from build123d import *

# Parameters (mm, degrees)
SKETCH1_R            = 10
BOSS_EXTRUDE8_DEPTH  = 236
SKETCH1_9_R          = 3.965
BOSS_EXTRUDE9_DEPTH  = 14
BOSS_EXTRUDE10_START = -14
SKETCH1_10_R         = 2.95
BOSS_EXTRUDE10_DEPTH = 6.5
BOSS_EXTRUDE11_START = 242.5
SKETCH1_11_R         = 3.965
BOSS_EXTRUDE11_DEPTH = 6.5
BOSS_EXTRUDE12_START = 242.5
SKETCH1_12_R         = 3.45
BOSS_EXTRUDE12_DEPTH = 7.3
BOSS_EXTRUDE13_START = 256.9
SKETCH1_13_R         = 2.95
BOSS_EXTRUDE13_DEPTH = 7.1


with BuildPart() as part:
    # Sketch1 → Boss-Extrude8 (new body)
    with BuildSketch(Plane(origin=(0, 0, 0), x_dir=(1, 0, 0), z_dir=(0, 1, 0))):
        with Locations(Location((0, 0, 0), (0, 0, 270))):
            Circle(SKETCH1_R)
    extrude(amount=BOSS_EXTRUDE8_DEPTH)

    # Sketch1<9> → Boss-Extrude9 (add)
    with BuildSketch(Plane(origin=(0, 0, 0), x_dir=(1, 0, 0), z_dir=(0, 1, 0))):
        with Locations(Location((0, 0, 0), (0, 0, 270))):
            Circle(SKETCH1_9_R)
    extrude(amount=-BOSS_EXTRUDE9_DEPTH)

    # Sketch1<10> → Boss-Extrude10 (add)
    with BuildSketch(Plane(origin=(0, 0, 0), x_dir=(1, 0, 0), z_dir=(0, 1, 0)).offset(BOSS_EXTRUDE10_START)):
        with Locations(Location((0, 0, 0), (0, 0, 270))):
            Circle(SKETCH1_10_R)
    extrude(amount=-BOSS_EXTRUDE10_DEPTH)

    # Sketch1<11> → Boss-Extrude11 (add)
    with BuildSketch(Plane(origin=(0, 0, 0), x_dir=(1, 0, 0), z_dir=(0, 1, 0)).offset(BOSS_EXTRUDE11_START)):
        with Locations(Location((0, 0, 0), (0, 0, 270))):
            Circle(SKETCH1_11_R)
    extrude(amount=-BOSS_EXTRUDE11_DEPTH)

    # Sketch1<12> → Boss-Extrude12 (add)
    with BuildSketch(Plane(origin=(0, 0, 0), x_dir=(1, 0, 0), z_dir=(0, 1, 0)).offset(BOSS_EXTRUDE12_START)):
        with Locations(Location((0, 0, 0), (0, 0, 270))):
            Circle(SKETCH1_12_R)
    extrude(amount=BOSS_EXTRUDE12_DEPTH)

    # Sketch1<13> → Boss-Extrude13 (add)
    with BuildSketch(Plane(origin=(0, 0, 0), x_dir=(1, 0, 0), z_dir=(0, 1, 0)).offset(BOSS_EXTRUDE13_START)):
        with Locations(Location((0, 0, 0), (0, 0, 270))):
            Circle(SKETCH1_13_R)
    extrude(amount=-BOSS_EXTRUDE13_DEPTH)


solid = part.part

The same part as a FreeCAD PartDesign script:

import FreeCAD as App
import Part
import Sketcher
from FreeCAD import Vector

doc = App.newDocument("Part")
body = doc.addObject("PartDesign::Body", "Body")

# Sketch on XZ plane
sketch1 = doc.addObject("Sketcher::SketchObject", "Sketch")
body.addObject(sketch1)
sketch1.AttachmentSupport = (doc.XZ_Plane, [""])
sketch1.MapMode = "FlatFace"
sketch1.addGeometry(Part.Circle(Vector(0, 0, 0), Vector(0, 0, 1), 10), False)
sketch1.addConstraint([
    Sketcher.Constraint("Coincident", 0, 3, -1, 1),
    Sketcher.Constraint("Diameter", 0, 20.0),
])
pad1 = doc.addObject("PartDesign::Pad", "Pad")
body.addObject(pad1)
pad1.Profile = sketch1
pad1.Length = 236
pad1.Reversed = True

# Sketch on XZ plane
sketch2 = doc.addObject("Sketcher::SketchObject", "Sketch001")
body.addObject(sketch2)
sketch2.AttachmentSupport = (doc.XZ_Plane, [""])
sketch2.MapMode = "FlatFace"
sketch2.addGeometry(Part.Circle(Vector(0, 0, 0), Vector(0, 0, 1), 3.965), False)
sketch2.addConstraint([
    Sketcher.Constraint("Coincident", 0, 3, -1, 1),
    Sketcher.Constraint("Diameter", 0, 7.93),
])
pad2 = doc.addObject("PartDesign::Pad", "Pad001")
body.addObject(pad2)
pad2.Profile = sketch2
pad2.Length = 14

# Sketch on XZ plane
sketch3 = doc.addObject("Sketcher::SketchObject", "Sketch002")
body.addObject(sketch3)
sketch3.AttachmentSupport = (doc.XZ_Plane, [""])
sketch3.MapMode = "FlatFace"
sketch3.AttachmentOffset = App.Placement(Vector(0, 0, 14), App.Rotation())
sketch3.addGeometry(Part.Circle(Vector(0, 0, 0), Vector(0, 0, 1), 2.95), False)
sketch3.addConstraint([
    Sketcher.Constraint("Coincident", 0, 3, -1, 1),
    Sketcher.Constraint("Diameter", 0, 5.9),
])
pad3 = doc.addObject("PartDesign::Pad", "Pad002")
body.addObject(pad3)
pad3.Profile = sketch3
pad3.Length = 6.5

# Sketch on XZ plane
sketch4 = doc.addObject("Sketcher::SketchObject", "Sketch003")
body.addObject(sketch4)
sketch4.AttachmentSupport = (doc.XZ_Plane, [""])
sketch4.MapMode = "FlatFace"
sketch4.AttachmentOffset = App.Placement(Vector(0, 0, -242.5), App.Rotation())
sketch4.addGeometry(Part.Circle(Vector(0, 0, 0), Vector(0, 0, 1), 3.965), False)
sketch4.addConstraint([
    Sketcher.Constraint("Coincident", 0, 3, -1, 1),
    Sketcher.Constraint("Diameter", 0, 7.93),
])
pad4 = doc.addObject("PartDesign::Pad", "Pad003")
body.addObject(pad4)
pad4.Profile = sketch4
pad4.Length = 6.5

# Sketch on XZ plane
sketch5 = doc.addObject("Sketcher::SketchObject", "Sketch004")
body.addObject(sketch5)
sketch5.AttachmentSupport = (doc.XZ_Plane, [""])
sketch5.MapMode = "FlatFace"
sketch5.AttachmentOffset = App.Placement(Vector(0, 0, -242.5), App.Rotation())
sketch5.addGeometry(Part.Circle(Vector(0, 0, 0), Vector(0, 0, 1), 3.45), False)
sketch5.addConstraint([
    Sketcher.Constraint("Coincident", 0, 3, -1, 1),
    Sketcher.Constraint("Diameter", 0, 6.9),
])
pad5 = doc.addObject("PartDesign::Pad", "Pad004")
body.addObject(pad5)
pad5.Profile = sketch5
pad5.Length = 7.3
pad5.Reversed = True

# Sketch on XZ plane
sketch6 = doc.addObject("Sketcher::SketchObject", "Sketch005")
body.addObject(sketch6)
sketch6.AttachmentSupport = (doc.XZ_Plane, [""])
sketch6.MapMode = "FlatFace"
sketch6.AttachmentOffset = App.Placement(Vector(0, 0, -256.9), App.Rotation())
sketch6.addGeometry(Part.Circle(Vector(0, 0, 0), Vector(0, 0, 1), 2.95), False)
sketch6.addConstraint([
    Sketcher.Constraint("Coincident", 0, 3, -1, 1),
    Sketcher.Constraint("Diameter", 0, 5.9),
])
pad6 = doc.addObject("PartDesign::Pad", "Pad005")
body.addObject(pad6)
pad6.Profile = sketch6
pad6.Length = 7.1

doc.recompute()
